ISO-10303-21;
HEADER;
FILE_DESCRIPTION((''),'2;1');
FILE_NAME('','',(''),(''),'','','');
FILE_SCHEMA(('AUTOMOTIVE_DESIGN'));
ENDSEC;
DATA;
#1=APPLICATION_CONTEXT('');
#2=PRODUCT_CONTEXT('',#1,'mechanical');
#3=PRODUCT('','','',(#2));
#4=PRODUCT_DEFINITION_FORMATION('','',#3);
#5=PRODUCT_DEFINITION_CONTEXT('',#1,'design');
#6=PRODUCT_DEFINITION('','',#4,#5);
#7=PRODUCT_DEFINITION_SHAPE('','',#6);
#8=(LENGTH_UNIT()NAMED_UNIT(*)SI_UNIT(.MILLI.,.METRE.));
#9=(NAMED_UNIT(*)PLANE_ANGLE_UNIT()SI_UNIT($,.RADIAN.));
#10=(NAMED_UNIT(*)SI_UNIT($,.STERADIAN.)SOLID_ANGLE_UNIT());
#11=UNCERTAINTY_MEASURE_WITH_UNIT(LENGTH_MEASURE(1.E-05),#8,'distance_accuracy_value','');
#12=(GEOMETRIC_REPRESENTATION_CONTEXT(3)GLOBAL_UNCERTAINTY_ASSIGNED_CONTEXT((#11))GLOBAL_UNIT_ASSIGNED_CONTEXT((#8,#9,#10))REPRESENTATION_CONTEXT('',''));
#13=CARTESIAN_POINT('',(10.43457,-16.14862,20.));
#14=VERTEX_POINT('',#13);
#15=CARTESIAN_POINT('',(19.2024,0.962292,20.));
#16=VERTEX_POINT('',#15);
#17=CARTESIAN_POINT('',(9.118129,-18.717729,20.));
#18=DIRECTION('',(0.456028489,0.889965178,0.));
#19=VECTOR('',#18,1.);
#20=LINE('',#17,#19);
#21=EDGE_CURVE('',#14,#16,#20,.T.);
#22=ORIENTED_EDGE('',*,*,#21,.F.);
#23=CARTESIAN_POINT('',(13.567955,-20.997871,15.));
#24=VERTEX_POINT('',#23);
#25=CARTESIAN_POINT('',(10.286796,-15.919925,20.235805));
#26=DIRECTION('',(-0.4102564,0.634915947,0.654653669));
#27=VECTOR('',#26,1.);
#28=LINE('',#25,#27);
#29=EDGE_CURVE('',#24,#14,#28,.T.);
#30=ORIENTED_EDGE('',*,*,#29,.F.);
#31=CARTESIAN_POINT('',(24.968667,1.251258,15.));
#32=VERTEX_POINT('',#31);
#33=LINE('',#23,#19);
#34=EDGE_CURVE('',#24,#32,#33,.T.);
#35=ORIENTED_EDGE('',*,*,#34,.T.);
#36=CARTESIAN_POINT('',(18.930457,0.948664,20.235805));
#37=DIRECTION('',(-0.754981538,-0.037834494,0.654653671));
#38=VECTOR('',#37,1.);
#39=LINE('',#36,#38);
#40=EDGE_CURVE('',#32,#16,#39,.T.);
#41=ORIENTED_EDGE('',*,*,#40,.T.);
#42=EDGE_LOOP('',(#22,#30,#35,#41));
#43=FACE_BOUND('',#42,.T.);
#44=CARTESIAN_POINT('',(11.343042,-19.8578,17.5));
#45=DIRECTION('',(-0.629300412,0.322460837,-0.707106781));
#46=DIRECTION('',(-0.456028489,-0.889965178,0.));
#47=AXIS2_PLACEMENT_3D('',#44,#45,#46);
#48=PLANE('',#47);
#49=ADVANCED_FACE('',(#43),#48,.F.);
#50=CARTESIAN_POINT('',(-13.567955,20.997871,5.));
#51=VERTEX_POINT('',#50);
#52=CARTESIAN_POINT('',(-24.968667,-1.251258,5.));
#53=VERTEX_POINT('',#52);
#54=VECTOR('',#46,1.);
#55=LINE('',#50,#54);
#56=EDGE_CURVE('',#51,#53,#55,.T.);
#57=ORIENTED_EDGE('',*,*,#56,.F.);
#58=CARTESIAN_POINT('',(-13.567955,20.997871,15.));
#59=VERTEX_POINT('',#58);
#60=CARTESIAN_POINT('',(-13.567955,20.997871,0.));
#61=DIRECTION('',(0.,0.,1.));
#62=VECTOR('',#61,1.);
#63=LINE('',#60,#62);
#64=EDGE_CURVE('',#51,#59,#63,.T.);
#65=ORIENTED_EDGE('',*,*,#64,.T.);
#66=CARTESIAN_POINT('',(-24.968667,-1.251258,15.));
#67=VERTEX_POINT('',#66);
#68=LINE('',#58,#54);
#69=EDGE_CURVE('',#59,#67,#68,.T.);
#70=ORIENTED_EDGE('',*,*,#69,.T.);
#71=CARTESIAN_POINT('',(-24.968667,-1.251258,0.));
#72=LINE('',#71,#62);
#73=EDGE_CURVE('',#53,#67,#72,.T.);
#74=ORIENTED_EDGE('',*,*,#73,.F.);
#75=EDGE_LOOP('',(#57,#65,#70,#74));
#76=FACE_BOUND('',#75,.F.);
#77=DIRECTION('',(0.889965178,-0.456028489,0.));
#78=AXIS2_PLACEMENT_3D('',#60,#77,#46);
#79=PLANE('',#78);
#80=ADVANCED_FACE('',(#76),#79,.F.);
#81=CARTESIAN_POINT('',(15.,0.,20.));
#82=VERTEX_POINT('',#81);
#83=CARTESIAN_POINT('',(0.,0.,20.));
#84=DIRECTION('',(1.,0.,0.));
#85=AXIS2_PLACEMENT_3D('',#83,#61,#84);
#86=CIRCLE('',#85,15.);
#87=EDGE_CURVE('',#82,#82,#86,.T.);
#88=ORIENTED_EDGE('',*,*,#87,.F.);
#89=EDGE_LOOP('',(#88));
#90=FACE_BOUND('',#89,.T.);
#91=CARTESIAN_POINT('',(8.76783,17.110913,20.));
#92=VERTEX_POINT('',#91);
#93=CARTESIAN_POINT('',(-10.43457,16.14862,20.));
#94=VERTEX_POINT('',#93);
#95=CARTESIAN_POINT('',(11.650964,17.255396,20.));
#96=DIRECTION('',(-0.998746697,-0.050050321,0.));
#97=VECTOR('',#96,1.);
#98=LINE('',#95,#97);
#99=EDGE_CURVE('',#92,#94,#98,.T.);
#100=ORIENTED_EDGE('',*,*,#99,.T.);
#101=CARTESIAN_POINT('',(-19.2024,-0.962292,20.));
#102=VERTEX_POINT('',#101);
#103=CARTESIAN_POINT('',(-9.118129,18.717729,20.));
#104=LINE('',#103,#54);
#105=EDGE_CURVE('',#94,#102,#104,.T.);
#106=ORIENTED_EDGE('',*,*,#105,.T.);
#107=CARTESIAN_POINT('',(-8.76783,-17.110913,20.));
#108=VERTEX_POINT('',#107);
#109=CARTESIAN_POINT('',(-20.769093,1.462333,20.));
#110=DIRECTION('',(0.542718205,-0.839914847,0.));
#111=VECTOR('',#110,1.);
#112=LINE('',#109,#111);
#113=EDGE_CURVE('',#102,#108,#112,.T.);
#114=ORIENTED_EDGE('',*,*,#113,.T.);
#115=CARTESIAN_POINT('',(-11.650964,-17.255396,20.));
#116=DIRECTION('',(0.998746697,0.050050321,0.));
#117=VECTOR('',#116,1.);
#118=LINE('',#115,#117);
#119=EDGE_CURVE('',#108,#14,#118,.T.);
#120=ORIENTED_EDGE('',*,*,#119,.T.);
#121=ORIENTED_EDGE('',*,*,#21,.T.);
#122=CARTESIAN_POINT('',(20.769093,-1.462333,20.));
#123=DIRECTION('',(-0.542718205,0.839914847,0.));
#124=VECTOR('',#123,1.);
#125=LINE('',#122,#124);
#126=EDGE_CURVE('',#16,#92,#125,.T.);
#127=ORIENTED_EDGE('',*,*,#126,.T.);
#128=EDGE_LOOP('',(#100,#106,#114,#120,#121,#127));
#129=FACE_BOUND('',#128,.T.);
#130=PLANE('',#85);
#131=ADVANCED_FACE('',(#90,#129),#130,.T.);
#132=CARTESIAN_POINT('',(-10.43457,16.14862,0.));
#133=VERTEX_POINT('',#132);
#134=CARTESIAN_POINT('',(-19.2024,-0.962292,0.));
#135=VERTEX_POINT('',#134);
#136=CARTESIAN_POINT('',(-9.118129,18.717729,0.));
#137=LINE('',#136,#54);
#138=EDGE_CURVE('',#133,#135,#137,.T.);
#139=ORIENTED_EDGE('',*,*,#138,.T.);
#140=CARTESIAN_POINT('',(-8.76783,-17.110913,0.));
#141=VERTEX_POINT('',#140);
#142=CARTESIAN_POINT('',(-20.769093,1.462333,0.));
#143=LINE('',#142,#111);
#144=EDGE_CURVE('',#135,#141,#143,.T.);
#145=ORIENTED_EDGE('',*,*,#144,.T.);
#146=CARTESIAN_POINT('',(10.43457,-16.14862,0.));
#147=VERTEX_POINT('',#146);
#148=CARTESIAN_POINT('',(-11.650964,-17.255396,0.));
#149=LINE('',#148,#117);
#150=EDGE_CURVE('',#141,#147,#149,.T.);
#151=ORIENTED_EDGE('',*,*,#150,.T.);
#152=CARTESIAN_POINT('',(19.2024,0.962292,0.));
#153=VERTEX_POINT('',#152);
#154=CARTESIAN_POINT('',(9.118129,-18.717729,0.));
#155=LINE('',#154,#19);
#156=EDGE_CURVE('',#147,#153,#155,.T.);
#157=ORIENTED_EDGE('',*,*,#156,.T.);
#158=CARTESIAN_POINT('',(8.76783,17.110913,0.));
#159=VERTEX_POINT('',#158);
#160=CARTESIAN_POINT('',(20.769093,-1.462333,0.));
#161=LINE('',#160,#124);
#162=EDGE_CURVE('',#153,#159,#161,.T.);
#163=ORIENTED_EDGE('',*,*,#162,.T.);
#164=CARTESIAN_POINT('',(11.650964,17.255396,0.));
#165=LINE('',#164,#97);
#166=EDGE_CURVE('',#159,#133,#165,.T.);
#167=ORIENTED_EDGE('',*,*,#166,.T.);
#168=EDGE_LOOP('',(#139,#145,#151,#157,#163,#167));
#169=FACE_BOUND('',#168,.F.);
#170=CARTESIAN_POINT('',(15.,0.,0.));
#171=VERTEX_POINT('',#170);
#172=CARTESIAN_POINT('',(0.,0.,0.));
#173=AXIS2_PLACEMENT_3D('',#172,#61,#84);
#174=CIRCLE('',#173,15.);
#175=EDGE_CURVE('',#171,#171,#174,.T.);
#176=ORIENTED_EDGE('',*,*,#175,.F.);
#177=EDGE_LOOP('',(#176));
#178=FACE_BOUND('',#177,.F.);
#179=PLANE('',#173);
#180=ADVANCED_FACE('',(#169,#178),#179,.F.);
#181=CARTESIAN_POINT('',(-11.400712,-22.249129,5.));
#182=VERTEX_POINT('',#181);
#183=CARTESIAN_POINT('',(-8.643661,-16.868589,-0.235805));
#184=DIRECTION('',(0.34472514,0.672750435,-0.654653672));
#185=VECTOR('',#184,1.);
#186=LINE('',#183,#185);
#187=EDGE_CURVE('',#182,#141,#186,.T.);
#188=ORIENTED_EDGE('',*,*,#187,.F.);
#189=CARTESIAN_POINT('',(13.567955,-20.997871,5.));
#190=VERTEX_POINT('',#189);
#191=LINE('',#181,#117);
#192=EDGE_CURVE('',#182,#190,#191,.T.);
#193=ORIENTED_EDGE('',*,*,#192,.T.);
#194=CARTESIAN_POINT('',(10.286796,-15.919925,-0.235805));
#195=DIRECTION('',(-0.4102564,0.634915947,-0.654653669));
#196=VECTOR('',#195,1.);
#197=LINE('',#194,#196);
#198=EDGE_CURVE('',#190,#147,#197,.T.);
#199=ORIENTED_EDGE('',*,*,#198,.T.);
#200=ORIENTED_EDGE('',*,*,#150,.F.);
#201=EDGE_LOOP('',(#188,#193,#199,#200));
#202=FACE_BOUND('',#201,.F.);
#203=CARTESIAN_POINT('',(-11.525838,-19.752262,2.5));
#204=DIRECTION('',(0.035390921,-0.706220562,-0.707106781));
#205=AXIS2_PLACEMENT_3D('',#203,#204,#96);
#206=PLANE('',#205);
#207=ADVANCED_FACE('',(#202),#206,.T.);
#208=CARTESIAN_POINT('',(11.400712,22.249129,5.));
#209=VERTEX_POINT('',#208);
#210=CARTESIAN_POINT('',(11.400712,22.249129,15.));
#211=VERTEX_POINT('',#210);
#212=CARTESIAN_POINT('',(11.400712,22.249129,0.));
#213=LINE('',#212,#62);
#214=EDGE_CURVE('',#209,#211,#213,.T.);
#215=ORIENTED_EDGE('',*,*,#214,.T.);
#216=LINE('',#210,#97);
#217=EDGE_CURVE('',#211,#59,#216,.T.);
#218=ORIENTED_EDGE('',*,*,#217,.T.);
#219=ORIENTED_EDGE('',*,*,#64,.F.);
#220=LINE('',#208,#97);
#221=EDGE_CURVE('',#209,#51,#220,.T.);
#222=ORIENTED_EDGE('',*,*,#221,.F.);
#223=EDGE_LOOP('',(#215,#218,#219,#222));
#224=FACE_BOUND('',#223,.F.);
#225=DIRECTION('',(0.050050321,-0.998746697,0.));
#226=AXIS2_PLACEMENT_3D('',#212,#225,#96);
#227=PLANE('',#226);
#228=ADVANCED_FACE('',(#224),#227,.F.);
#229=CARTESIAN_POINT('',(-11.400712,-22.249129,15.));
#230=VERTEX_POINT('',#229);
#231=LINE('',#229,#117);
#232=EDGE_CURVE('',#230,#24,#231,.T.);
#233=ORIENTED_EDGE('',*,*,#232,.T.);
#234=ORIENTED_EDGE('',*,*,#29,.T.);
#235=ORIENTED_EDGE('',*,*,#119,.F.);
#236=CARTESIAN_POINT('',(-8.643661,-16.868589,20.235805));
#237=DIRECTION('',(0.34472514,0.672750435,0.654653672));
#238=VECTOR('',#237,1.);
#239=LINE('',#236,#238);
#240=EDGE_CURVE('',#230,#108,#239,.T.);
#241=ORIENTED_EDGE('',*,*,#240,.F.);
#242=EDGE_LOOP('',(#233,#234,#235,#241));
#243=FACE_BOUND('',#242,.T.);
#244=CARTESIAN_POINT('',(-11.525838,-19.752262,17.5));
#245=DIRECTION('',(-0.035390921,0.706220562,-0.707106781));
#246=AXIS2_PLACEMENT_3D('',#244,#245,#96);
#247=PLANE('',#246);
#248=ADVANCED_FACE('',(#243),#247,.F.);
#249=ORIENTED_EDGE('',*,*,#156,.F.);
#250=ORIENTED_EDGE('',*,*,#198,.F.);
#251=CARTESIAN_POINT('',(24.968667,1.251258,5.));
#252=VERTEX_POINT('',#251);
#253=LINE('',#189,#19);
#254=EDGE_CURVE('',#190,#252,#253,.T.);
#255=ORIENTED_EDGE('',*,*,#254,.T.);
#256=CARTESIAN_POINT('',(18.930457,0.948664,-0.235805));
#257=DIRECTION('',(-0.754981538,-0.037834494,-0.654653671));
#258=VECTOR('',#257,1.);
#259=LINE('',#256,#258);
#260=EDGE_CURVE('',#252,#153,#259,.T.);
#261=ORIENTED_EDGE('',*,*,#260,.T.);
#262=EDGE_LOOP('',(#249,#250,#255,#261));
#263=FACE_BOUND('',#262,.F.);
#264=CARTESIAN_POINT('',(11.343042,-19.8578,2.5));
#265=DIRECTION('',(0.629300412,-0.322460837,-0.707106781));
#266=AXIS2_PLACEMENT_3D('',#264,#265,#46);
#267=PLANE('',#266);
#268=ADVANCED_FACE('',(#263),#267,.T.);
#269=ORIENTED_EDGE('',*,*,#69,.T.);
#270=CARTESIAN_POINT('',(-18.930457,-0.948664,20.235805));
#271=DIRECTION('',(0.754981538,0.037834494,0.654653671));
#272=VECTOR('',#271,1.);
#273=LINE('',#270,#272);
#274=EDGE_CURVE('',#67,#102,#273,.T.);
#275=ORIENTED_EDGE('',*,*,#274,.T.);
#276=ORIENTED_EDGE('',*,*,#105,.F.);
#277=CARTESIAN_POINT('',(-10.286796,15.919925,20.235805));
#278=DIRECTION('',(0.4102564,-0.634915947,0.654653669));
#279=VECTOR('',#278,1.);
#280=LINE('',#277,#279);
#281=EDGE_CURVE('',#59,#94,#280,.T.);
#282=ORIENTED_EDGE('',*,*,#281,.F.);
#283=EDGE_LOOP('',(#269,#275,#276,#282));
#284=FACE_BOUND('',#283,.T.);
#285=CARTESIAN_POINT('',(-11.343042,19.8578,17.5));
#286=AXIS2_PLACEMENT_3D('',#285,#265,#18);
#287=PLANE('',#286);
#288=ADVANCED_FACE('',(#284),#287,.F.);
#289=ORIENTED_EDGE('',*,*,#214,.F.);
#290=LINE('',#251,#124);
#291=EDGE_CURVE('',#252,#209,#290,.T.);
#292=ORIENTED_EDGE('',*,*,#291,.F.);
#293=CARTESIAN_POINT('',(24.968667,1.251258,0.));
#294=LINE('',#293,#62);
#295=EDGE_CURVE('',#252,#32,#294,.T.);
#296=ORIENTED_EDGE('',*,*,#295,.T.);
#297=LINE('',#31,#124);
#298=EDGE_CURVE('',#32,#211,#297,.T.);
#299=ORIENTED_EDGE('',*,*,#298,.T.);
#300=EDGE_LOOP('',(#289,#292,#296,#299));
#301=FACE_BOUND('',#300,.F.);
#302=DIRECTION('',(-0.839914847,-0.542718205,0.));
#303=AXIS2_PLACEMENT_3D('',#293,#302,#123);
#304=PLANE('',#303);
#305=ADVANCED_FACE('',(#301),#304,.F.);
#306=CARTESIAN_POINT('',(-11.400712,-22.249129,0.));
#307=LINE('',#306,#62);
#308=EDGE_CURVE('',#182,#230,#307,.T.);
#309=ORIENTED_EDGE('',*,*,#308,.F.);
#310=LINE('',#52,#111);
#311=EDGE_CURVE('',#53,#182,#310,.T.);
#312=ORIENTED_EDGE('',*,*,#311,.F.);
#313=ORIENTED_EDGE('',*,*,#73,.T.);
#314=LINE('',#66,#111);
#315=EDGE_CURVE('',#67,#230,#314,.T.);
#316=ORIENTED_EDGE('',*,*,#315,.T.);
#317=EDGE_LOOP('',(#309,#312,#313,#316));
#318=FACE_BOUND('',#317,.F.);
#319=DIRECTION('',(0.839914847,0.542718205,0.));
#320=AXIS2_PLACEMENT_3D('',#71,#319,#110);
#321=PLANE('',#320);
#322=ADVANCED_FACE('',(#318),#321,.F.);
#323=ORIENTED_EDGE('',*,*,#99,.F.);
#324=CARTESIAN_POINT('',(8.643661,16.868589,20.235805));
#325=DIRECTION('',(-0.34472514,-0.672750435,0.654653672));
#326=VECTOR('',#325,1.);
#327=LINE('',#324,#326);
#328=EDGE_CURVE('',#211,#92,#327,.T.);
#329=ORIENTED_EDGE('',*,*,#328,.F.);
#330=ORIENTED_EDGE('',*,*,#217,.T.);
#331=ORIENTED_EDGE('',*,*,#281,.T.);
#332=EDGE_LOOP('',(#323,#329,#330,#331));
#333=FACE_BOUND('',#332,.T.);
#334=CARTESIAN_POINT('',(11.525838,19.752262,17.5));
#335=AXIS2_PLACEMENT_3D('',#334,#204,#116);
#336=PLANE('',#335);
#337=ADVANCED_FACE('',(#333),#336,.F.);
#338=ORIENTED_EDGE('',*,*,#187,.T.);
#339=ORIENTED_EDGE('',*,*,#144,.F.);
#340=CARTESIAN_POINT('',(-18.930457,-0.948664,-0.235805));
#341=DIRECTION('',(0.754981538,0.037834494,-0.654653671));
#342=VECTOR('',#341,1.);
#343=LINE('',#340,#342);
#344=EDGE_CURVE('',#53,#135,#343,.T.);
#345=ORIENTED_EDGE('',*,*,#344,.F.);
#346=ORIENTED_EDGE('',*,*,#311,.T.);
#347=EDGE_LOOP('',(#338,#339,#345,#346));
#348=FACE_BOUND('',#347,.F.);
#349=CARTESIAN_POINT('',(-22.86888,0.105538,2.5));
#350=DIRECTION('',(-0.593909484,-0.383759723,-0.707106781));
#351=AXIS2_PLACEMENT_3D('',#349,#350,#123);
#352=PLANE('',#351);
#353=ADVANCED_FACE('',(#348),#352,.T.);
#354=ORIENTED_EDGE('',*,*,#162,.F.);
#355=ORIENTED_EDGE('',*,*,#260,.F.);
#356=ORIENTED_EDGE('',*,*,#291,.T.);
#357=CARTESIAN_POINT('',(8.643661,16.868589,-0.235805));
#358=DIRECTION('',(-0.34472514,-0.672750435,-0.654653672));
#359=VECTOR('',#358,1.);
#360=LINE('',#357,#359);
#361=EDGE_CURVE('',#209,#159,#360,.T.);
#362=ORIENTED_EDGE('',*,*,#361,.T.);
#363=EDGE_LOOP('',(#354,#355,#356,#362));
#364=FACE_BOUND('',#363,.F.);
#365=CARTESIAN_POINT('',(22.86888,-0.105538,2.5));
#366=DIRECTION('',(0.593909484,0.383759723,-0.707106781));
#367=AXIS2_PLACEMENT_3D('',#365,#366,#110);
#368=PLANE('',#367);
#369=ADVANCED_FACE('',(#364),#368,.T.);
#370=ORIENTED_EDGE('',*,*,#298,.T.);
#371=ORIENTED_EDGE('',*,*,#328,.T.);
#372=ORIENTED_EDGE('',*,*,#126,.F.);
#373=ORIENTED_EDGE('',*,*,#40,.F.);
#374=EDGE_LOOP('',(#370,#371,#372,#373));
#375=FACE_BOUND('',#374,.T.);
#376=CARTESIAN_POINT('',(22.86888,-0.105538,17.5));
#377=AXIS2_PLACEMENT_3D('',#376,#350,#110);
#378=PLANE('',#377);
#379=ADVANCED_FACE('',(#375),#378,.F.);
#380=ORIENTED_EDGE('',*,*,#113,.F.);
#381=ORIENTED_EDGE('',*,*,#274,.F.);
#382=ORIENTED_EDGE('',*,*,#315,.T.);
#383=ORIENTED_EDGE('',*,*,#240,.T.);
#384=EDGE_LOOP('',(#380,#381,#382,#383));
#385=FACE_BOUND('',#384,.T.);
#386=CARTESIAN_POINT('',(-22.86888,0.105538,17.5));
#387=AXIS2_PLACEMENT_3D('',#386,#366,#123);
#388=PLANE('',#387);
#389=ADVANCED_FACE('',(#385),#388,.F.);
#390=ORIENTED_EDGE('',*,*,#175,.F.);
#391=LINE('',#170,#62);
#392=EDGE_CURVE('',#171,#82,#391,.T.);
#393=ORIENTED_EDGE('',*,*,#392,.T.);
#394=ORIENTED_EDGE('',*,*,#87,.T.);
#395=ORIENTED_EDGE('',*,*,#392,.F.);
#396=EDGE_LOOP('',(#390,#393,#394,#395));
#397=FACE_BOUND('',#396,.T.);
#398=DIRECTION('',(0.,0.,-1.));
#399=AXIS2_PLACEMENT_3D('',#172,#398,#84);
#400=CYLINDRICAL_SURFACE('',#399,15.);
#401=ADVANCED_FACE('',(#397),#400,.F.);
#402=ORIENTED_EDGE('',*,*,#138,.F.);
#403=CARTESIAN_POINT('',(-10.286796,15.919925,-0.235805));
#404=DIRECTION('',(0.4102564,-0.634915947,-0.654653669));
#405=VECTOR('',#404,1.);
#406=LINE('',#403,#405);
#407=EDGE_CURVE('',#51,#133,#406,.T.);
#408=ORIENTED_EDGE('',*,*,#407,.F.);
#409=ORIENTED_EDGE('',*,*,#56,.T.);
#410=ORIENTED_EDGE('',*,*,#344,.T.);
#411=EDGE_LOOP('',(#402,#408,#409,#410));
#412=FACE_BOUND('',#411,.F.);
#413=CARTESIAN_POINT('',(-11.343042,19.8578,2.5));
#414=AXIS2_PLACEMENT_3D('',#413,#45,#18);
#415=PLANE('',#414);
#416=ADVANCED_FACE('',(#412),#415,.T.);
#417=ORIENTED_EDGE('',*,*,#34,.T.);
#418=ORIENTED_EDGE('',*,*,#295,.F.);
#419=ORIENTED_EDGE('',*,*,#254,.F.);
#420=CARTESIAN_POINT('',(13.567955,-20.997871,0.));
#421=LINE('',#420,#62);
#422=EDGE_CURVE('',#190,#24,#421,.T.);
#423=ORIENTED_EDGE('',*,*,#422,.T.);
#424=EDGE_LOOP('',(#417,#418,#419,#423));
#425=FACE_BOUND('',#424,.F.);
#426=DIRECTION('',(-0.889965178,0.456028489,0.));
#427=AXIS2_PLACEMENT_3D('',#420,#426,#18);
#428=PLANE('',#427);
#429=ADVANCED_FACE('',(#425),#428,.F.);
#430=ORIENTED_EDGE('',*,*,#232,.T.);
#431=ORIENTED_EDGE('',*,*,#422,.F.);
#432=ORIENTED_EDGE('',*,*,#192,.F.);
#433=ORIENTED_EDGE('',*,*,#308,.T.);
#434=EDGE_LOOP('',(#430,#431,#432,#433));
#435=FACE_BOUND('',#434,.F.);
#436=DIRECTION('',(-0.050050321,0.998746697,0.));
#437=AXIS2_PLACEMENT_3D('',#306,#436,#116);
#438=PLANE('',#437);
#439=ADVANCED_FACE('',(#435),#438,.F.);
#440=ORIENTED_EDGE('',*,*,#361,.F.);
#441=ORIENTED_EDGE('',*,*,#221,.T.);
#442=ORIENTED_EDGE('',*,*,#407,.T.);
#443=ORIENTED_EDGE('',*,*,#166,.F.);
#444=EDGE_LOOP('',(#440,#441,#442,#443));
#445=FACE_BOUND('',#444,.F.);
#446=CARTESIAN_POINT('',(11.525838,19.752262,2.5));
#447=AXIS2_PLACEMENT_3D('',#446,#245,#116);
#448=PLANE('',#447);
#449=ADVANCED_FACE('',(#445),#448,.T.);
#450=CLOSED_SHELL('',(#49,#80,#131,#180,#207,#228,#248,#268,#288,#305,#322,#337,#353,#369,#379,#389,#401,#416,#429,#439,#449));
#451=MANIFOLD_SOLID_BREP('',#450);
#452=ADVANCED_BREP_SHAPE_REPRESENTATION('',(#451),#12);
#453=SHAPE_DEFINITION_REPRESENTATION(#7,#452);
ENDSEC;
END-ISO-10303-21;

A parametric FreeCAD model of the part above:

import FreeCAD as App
import Part
import Sketcher
from FreeCAD import Vector
Q = App.Units.Quantity


def edges_at(feature, points):
    """Names of the edges that pass closest to the given points."""
    edges = feature.Shape.Edges
    near = lambda p: min(range(len(edges)), key=lambda i: edges[i].distToShape(Part.Vertex(*p))[0])
    return sorted({f"Edge{near(p) + 1}" for p in points})

doc = App.newDocument("Part")
body = doc.addObject("PartDesign::Body", "Body")

sketch1 = doc.addObject("Sketcher::SketchObject", "Sketch")
body.addObject(sketch1)
sketch1.AttachmentSupport = (doc.XY_Plane, [""])
sketch1.MapMode = "FlatFace"
sketch1.addGeometry([
    Part.LineSegment(Vector(-11, -22, 0), Vector(14, -21, 0)),
    Part.LineSegment(Vector(14, -21, 0), Vector(25, 1, 0)),
    Part.LineSegment(Vector(25, 1, 0), Vector(11, 22, 0)),
    Part.LineSegment(Vector(11, 22, 0), Vector(-14, 21, 0)),
    Part.LineSegment(Vector(-14, 21, 0), Vector(-25, -1, 0)),
    Part.LineSegment(Vector(-25, -1, 0), Vector(-11, -22, 0)),
    Part.Circle(Vector(0, 0, 0), Vector(0, 0, 1), 15),
], False)
sketch1.addConstraint([
    Sketcher.Constraint("Coincident", 0, 2, 1, 1),
    Sketcher.Constraint("Coincident", 1, 2, 2, 1),
    Sketcher.Constraint("Coincident", 2, 2, 3, 1),
    Sketcher.Constraint("Coincident", 3, 2, 4, 1),
    Sketcher.Constraint("Coincident", 4, 2, 5, 1),
    Sketcher.Constraint("Coincident", 5, 2, 0, 1),
    Sketcher.Constraint("Coincident", 6, 3, -1, 1),
    Sketcher.Constraint("Symmetric", 0, 2, 3, 2, -1, 1),
    Sketcher.Constraint("Symmetric", 1, 2, 4, 2, -1, 1),
    Sketcher.Constraint("Symmetric", 2, 2, 5, 2, -1, 1),
    Sketcher.Constraint("Equal", 0, 1),
    Sketcher.Constraint("Equal", 1, 2),
    Sketcher.Constraint("Diameter", 6, Q("30 mm")),
    Sketcher.Constraint("Distance", 0, Q("25 mm")),
    Sketcher.Constraint("DistanceY", 0, 2, 2, 2, Q("43.247 mm")),
    Sketcher.Constraint("DistanceY", 0, 2, -1, 1, Q("20.997871 mm")),
    Sketcher.Constraint("DistanceY", 0, 2, 1, 2, Q("22.249129 mm")),
])
pad1 = doc.addObject("PartDesign::Pad", "Pad")
body.addObject(pad1)
pad1.Profile = sketch1
pad1.Length = 20

sketch2 = doc.addObject("Sketcher::SketchObject", "Sketch001")
body.addObject(sketch2)
sketch2.AttachmentSupport = (doc.XY_Plane, [""])
sketch2.MapMode = "FlatFace"
sketch2.addGeometry(Part.Circle(Vector(0, 0, 0), Vector(0, 0, 1), 15), False)
sketch2.addConstraint([
    Sketcher.Constraint("Coincident", 0, 3, -1, 1),
    Sketcher.Constraint("Diameter", 0, Q("30 mm")),
])
pocket1 = doc.addObject("PartDesign::Pocket", "Pocket")
body.addObject(pocket1)
pocket1.Profile = sketch2
pocket1.Length = 33.7
pocket1.Reversed = True
doc.recompute()

chamfer = doc.addObject("PartDesign::Chamfer", "Chamfer")
body.addObject(chamfer)
chamfer.Base = (pocket1, edges_at(pocket1, [
    (1.084, -21.623, 20),
    (1.084, -21.623, 0),
    (-18.185, -11.75, 0),
    (-18.185, -11.75, 20),
    (-19.268, 9.873, 0),
    (-19.268, 9.873, 20),
    (-1.084, 21.623, 20),
    (-1.084, 21.623, 0),
    (18.185, 11.75, 0),
    (18.185, 11.75, 20),
    (19.268, -9.873, 20),
    (19.268, -9.873, 0),
]))
chamfer.Size = 5

doc.recompute()
